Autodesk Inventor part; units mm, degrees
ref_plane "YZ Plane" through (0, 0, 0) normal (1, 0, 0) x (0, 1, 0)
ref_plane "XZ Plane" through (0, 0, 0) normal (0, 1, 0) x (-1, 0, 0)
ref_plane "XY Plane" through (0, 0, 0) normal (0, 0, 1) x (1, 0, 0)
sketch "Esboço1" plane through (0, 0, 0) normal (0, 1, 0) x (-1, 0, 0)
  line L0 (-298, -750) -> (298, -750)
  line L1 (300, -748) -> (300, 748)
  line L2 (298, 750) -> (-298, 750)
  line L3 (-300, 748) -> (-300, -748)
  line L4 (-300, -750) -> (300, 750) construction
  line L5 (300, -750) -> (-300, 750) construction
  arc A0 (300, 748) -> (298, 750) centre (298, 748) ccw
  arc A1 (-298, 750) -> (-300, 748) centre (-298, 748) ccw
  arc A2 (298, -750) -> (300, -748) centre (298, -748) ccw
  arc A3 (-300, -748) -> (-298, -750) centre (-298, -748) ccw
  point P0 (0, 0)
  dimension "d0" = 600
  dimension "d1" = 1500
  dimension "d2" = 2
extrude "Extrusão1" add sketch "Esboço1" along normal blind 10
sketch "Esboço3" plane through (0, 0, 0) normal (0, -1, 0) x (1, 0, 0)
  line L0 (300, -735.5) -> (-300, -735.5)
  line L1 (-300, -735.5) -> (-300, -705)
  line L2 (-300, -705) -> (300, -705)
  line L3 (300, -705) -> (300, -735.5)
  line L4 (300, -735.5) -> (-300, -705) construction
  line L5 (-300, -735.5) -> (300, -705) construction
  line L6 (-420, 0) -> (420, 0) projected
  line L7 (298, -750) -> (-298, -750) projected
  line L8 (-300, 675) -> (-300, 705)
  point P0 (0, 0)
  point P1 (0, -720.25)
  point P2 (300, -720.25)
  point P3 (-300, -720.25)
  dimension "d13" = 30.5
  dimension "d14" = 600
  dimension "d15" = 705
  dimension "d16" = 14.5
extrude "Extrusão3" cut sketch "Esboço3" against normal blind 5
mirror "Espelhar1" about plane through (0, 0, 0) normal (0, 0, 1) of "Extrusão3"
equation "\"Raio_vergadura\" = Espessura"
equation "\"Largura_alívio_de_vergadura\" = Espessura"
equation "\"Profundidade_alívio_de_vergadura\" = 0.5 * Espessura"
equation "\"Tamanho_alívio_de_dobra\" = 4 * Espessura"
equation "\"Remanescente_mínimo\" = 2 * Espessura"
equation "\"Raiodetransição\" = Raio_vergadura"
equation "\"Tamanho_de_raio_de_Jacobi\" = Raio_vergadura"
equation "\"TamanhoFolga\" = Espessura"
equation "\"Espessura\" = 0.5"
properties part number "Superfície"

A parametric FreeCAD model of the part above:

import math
import FreeCAD as App
import Part
import Sketcher
from FreeCAD import Vector
Q = App.Units.Quantity

doc = App.newDocument("Part")
body = doc.addObject("PartDesign::Body", "Body")

# Sketch on XZ plane
sketch1 = doc.addObject("Sketcher::SketchObject", "Sketch")
body.addObject(sketch1)
sketch1.AttachmentSupport = (doc.XZ_Plane, [""])
sketch1.MapMode = "FlatFace"
sketch1.addGeometry(Part.ArcOfCircle(Part.Circle(Vector(298, -748, 0), Vector(0, 0, 1), 2), math.radians(-90), math.radians(0)), False)
sketch1.addGeometry(Part.LineSegment(Vector(298, -750, 0), Vector(-298, -750, 0)), False)
sketch1.addGeometry(Part.ArcOfCircle(Part.Circle(Vector(-298, -748, 0), Vector(0, 0, 1), 2), math.radians(180), math.radians(270)), False)
sketch1.addGeometry(Part.LineSegment(Vector(-300, -748, 0), Vector(-300, 748, 0)), False)
sketch1.addGeometry(Part.ArcOfCircle(Part.Circle(Vector(-298, 748, 0), Vector(0, 0, 1), 2), math.radians(90), math.radians(180)), False)
sketch1.addGeometry(Part.LineSegment(Vector(-298, 750, 0), Vector(298, 750, 0)), False)
sketch1.addGeometry(Part.ArcOfCircle(Part.Circle(Vector(298, 748, 0), Vector(0, 0, 1), 2), math.radians(0), math.radians(90)), False)
sketch1.addGeometry(Part.LineSegment(Vector(300, 748, 0), Vector(300, -748, 0)), False)
sketch1.addConstraint(Sketcher.Constraint("Tangent", 0, 1, 1, 1))
sketch1.addConstraint(Sketcher.Constraint("Tangent", 1, 2, 2, 2))
sketch1.addConstraint(Sketcher.Constraint("Tangent", 2, 1, 3, 1))
sketch1.addConstraint(Sketcher.Constraint("Tangent", 3, 2, 4, 2))
sketch1.addConstraint(Sketcher.Constraint("Tangent", 4, 1, 5, 1))
sketch1.addConstraint(Sketcher.Constraint("Tangent", 5, 2, 6, 2))
sketch1.addConstraint(Sketcher.Constraint("Tangent", 6, 1, 7, 1))
sketch1.addConstraint(Sketcher.Constraint("Tangent", 7, 2, 0, 2))
sketch1.addConstraint(Sketcher.Constraint("Horizontal", 1))
sketch1.addConstraint(Sketcher.Constraint("Vertical", 3))
sketch1.addConstraint(Sketcher.Constraint("Horizontal", 5))
sketch1.addConstraint(Sketcher.Constraint("Vertical", 7))
sketch1.addConstraint(Sketcher.Constraint("Equal", 0, 2))
sketch1.addConstraint(Sketcher.Constraint("Equal", 2, 4))
sketch1.addConstraint(Sketcher.Constraint("Equal", 4, 6))
sketch1.addConstraint(Sketcher.Constraint("Symmetric", 0, 3, 4, 3, -1, 1))
sketch1.addConstraint(Sketcher.Constraint("Radius", 0, Q("2 mm")))
sketch1.addConstraint(Sketcher.Constraint("DistanceX", 3, 2, 6, 1, Q("600 mm")))
sketch1.addConstraint(Sketcher.Constraint("DistanceY", 3, 1, 3, 2, Q("1496 mm")))
pad1 = doc.addObject("PartDesign::Pad", "Pad")
body.addObject(pad1)
pad1.Profile = sketch1
pad1.Length = 10
pad1.Reversed = True

# Sketch on XZ plane
sketch2 = doc.addObject("Sketcher::SketchObject", "Sketch001")
body.addObject(sketch2)
sketch2.AttachmentSupport = (doc.XZ_Plane, [""])
sketch2.MapMode = "FlatFace"
sketch2.addGeometry(Part.LineSegment(Vector(-300, -735.5, 0), Vector(300, -735.5, 0)), False)
sketch2.addGeometry(Part.LineSegment(Vector(300, -735.5, 0), Vector(300, -705, 0)), False)
sketch2.addGeometry(Part.LineSegment(Vector(300, -705, 0), Vector(-300, -705, 0)), False)
sketch2.addGeometry(Part.LineSegment(Vector(-300, -705, 0), Vector(-300, -735.5, 0)), False)
sketch2.addConstraint(Sketcher.Constraint("Coincident", 0, 2, 1, 1))
sketch2.addConstraint(Sketcher.Constraint("Coincident", 1, 2, 2, 1))
sketch2.addConstraint(Sketcher.Constraint("Coincident", 2, 2, 3, 1))
sketch2.addConstraint(Sketcher.Constraint("Coincident", 3, 2, 0, 1))
sketch2.addConstraint(Sketcher.Constraint("Horizontal", 0))
sketch2.addConstraint(Sketcher.Constraint("Vertical", 1))
sketch2.addConstraint(Sketcher.Constraint("Horizontal", 2))
sketch2.addConstraint(Sketcher.Constraint("Vertical", 3))
sketch2.addConstraint(Sketcher.Constraint("DistanceX", 0, 1, 0, 2, Q("600 mm")))
sketch2.addConstraint(Sketcher.Constraint("DistanceY", 1, 1, 1, 2, Q("30.5 mm")))
sketch2.addConstraint(Sketcher.Constraint("DistanceY", 1, 2, -1, 1, Q("705 mm")))
sketch2.addConstraint(Sketcher.Constraint("DistanceX", -1, 1, 0, 2, Q("300 mm")))
pocket1 = doc.addObject("PartDesign::Pocket", "Pocket")
body.addObject(pocket1)
pocket1.Profile = sketch2
pocket1.Length = 5
doc.recompute()

mirrored = doc.addObject("PartDesign::Mirrored", "Mirrored")
body.addObject(mirrored)
mirrored.Originals = [pocket1]
mirrored.MirrorPlane = (doc.XY_Plane, [""])
body.Tip = mirrored

doc.recompute()
